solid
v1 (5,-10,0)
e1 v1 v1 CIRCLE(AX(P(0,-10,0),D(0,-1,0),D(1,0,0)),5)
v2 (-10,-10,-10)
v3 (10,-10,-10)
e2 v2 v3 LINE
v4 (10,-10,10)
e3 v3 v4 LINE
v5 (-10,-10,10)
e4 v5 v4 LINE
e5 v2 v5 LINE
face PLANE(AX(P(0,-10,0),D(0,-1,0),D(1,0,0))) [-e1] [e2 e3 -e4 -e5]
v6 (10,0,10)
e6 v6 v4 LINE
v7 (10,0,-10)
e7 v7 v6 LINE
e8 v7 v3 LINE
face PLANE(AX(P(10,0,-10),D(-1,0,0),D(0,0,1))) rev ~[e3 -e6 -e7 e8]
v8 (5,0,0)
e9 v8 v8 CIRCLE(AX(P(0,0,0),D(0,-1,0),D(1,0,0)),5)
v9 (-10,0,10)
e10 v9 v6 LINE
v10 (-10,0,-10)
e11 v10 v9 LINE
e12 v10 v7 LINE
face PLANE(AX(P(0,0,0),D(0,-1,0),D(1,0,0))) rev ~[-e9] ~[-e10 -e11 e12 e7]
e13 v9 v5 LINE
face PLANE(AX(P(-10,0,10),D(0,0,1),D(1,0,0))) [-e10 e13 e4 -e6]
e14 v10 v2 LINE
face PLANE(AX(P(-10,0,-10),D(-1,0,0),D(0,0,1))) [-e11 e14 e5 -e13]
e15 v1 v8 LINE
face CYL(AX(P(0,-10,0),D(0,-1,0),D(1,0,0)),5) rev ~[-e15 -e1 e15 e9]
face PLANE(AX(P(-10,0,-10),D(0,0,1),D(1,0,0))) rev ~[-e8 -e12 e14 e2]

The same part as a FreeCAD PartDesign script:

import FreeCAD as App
import Part
import Sketcher

V = App.Vector

doc = App.newDocument("Part")
body = doc.addObject("PartDesign::Body", "Body")

sketch1 = doc.addObject("Sketcher::SketchObject", "Sketch")
body.addObject(sketch1)
sketch1.AttachmentSupport = (doc.XZ_Plane, [""])
sketch1.MapMode = "FlatFace"
sketch1.addGeometry([
    Part.LineSegment(V(-10, 10, 0), V(-10, -10, 0)),
    Part.LineSegment(V(-10, -10, 0), V(10, -10, 0)),
    Part.LineSegment(V(10, -10, 0), V(10, 10, 0)),
    Part.LineSegment(V(10, 10, 0), V(-10, 10, 0)),
], False)
sketch1.addConstraint([
    Sketcher.Constraint("Coincident", 0, 2, 1, 1),
    Sketcher.Constraint("Coincident", 1, 2, 2, 1),
    Sketcher.Constraint("Coincident", 2, 2, 3, 1),
    Sketcher.Constraint("Coincident", 3, 2, 0, 1),
    Sketcher.Constraint("Vertical", 0),
    Sketcher.Constraint("Horizontal", 1),
    Sketcher.Constraint("Vertical", 2),
    Sketcher.Constraint("Horizontal", 3),
    Sketcher.Constraint("Symmetric", 0, 2, 2, 2, -1, 1),
    Sketcher.Constraint("Equal", 3, 0),
    Sketcher.Constraint("DistanceX", 1, 1, 1, 2, 20.0),
])
pad1 = doc.addObject("PartDesign::Pad", "Pad")
body.addObject(pad1)
pad1.Profile = sketch1
pad1.Length = 10

sketch2 = doc.addObject("Sketcher::SketchObject", "Sketch001")
body.addObject(sketch2)
sketch2.AttachmentSupport = (doc.XZ_Plane, [""])
sketch2.MapMode = "FlatFace"
sketch2.AttachmentOffset = App.Placement(V(0, 0, 10), App.Rotation())
sketch2.addGeometry(Part.Circle(V(0, 0, 0), V(0, 0, 1), 5), False)
sketch2.addConstraint([
    Sketcher.Constraint("Coincident", 0, 3, -1, 1),
    Sketcher.Constraint("Diameter", 0, 10.0),
])
pocket1 = doc.addObject("PartDesign::Pocket", "Pocket")
body.addObject(pocket1)
pocket1.Profile = sketch2
pocket1.Type = "ThroughAll"

doc.recompute()
